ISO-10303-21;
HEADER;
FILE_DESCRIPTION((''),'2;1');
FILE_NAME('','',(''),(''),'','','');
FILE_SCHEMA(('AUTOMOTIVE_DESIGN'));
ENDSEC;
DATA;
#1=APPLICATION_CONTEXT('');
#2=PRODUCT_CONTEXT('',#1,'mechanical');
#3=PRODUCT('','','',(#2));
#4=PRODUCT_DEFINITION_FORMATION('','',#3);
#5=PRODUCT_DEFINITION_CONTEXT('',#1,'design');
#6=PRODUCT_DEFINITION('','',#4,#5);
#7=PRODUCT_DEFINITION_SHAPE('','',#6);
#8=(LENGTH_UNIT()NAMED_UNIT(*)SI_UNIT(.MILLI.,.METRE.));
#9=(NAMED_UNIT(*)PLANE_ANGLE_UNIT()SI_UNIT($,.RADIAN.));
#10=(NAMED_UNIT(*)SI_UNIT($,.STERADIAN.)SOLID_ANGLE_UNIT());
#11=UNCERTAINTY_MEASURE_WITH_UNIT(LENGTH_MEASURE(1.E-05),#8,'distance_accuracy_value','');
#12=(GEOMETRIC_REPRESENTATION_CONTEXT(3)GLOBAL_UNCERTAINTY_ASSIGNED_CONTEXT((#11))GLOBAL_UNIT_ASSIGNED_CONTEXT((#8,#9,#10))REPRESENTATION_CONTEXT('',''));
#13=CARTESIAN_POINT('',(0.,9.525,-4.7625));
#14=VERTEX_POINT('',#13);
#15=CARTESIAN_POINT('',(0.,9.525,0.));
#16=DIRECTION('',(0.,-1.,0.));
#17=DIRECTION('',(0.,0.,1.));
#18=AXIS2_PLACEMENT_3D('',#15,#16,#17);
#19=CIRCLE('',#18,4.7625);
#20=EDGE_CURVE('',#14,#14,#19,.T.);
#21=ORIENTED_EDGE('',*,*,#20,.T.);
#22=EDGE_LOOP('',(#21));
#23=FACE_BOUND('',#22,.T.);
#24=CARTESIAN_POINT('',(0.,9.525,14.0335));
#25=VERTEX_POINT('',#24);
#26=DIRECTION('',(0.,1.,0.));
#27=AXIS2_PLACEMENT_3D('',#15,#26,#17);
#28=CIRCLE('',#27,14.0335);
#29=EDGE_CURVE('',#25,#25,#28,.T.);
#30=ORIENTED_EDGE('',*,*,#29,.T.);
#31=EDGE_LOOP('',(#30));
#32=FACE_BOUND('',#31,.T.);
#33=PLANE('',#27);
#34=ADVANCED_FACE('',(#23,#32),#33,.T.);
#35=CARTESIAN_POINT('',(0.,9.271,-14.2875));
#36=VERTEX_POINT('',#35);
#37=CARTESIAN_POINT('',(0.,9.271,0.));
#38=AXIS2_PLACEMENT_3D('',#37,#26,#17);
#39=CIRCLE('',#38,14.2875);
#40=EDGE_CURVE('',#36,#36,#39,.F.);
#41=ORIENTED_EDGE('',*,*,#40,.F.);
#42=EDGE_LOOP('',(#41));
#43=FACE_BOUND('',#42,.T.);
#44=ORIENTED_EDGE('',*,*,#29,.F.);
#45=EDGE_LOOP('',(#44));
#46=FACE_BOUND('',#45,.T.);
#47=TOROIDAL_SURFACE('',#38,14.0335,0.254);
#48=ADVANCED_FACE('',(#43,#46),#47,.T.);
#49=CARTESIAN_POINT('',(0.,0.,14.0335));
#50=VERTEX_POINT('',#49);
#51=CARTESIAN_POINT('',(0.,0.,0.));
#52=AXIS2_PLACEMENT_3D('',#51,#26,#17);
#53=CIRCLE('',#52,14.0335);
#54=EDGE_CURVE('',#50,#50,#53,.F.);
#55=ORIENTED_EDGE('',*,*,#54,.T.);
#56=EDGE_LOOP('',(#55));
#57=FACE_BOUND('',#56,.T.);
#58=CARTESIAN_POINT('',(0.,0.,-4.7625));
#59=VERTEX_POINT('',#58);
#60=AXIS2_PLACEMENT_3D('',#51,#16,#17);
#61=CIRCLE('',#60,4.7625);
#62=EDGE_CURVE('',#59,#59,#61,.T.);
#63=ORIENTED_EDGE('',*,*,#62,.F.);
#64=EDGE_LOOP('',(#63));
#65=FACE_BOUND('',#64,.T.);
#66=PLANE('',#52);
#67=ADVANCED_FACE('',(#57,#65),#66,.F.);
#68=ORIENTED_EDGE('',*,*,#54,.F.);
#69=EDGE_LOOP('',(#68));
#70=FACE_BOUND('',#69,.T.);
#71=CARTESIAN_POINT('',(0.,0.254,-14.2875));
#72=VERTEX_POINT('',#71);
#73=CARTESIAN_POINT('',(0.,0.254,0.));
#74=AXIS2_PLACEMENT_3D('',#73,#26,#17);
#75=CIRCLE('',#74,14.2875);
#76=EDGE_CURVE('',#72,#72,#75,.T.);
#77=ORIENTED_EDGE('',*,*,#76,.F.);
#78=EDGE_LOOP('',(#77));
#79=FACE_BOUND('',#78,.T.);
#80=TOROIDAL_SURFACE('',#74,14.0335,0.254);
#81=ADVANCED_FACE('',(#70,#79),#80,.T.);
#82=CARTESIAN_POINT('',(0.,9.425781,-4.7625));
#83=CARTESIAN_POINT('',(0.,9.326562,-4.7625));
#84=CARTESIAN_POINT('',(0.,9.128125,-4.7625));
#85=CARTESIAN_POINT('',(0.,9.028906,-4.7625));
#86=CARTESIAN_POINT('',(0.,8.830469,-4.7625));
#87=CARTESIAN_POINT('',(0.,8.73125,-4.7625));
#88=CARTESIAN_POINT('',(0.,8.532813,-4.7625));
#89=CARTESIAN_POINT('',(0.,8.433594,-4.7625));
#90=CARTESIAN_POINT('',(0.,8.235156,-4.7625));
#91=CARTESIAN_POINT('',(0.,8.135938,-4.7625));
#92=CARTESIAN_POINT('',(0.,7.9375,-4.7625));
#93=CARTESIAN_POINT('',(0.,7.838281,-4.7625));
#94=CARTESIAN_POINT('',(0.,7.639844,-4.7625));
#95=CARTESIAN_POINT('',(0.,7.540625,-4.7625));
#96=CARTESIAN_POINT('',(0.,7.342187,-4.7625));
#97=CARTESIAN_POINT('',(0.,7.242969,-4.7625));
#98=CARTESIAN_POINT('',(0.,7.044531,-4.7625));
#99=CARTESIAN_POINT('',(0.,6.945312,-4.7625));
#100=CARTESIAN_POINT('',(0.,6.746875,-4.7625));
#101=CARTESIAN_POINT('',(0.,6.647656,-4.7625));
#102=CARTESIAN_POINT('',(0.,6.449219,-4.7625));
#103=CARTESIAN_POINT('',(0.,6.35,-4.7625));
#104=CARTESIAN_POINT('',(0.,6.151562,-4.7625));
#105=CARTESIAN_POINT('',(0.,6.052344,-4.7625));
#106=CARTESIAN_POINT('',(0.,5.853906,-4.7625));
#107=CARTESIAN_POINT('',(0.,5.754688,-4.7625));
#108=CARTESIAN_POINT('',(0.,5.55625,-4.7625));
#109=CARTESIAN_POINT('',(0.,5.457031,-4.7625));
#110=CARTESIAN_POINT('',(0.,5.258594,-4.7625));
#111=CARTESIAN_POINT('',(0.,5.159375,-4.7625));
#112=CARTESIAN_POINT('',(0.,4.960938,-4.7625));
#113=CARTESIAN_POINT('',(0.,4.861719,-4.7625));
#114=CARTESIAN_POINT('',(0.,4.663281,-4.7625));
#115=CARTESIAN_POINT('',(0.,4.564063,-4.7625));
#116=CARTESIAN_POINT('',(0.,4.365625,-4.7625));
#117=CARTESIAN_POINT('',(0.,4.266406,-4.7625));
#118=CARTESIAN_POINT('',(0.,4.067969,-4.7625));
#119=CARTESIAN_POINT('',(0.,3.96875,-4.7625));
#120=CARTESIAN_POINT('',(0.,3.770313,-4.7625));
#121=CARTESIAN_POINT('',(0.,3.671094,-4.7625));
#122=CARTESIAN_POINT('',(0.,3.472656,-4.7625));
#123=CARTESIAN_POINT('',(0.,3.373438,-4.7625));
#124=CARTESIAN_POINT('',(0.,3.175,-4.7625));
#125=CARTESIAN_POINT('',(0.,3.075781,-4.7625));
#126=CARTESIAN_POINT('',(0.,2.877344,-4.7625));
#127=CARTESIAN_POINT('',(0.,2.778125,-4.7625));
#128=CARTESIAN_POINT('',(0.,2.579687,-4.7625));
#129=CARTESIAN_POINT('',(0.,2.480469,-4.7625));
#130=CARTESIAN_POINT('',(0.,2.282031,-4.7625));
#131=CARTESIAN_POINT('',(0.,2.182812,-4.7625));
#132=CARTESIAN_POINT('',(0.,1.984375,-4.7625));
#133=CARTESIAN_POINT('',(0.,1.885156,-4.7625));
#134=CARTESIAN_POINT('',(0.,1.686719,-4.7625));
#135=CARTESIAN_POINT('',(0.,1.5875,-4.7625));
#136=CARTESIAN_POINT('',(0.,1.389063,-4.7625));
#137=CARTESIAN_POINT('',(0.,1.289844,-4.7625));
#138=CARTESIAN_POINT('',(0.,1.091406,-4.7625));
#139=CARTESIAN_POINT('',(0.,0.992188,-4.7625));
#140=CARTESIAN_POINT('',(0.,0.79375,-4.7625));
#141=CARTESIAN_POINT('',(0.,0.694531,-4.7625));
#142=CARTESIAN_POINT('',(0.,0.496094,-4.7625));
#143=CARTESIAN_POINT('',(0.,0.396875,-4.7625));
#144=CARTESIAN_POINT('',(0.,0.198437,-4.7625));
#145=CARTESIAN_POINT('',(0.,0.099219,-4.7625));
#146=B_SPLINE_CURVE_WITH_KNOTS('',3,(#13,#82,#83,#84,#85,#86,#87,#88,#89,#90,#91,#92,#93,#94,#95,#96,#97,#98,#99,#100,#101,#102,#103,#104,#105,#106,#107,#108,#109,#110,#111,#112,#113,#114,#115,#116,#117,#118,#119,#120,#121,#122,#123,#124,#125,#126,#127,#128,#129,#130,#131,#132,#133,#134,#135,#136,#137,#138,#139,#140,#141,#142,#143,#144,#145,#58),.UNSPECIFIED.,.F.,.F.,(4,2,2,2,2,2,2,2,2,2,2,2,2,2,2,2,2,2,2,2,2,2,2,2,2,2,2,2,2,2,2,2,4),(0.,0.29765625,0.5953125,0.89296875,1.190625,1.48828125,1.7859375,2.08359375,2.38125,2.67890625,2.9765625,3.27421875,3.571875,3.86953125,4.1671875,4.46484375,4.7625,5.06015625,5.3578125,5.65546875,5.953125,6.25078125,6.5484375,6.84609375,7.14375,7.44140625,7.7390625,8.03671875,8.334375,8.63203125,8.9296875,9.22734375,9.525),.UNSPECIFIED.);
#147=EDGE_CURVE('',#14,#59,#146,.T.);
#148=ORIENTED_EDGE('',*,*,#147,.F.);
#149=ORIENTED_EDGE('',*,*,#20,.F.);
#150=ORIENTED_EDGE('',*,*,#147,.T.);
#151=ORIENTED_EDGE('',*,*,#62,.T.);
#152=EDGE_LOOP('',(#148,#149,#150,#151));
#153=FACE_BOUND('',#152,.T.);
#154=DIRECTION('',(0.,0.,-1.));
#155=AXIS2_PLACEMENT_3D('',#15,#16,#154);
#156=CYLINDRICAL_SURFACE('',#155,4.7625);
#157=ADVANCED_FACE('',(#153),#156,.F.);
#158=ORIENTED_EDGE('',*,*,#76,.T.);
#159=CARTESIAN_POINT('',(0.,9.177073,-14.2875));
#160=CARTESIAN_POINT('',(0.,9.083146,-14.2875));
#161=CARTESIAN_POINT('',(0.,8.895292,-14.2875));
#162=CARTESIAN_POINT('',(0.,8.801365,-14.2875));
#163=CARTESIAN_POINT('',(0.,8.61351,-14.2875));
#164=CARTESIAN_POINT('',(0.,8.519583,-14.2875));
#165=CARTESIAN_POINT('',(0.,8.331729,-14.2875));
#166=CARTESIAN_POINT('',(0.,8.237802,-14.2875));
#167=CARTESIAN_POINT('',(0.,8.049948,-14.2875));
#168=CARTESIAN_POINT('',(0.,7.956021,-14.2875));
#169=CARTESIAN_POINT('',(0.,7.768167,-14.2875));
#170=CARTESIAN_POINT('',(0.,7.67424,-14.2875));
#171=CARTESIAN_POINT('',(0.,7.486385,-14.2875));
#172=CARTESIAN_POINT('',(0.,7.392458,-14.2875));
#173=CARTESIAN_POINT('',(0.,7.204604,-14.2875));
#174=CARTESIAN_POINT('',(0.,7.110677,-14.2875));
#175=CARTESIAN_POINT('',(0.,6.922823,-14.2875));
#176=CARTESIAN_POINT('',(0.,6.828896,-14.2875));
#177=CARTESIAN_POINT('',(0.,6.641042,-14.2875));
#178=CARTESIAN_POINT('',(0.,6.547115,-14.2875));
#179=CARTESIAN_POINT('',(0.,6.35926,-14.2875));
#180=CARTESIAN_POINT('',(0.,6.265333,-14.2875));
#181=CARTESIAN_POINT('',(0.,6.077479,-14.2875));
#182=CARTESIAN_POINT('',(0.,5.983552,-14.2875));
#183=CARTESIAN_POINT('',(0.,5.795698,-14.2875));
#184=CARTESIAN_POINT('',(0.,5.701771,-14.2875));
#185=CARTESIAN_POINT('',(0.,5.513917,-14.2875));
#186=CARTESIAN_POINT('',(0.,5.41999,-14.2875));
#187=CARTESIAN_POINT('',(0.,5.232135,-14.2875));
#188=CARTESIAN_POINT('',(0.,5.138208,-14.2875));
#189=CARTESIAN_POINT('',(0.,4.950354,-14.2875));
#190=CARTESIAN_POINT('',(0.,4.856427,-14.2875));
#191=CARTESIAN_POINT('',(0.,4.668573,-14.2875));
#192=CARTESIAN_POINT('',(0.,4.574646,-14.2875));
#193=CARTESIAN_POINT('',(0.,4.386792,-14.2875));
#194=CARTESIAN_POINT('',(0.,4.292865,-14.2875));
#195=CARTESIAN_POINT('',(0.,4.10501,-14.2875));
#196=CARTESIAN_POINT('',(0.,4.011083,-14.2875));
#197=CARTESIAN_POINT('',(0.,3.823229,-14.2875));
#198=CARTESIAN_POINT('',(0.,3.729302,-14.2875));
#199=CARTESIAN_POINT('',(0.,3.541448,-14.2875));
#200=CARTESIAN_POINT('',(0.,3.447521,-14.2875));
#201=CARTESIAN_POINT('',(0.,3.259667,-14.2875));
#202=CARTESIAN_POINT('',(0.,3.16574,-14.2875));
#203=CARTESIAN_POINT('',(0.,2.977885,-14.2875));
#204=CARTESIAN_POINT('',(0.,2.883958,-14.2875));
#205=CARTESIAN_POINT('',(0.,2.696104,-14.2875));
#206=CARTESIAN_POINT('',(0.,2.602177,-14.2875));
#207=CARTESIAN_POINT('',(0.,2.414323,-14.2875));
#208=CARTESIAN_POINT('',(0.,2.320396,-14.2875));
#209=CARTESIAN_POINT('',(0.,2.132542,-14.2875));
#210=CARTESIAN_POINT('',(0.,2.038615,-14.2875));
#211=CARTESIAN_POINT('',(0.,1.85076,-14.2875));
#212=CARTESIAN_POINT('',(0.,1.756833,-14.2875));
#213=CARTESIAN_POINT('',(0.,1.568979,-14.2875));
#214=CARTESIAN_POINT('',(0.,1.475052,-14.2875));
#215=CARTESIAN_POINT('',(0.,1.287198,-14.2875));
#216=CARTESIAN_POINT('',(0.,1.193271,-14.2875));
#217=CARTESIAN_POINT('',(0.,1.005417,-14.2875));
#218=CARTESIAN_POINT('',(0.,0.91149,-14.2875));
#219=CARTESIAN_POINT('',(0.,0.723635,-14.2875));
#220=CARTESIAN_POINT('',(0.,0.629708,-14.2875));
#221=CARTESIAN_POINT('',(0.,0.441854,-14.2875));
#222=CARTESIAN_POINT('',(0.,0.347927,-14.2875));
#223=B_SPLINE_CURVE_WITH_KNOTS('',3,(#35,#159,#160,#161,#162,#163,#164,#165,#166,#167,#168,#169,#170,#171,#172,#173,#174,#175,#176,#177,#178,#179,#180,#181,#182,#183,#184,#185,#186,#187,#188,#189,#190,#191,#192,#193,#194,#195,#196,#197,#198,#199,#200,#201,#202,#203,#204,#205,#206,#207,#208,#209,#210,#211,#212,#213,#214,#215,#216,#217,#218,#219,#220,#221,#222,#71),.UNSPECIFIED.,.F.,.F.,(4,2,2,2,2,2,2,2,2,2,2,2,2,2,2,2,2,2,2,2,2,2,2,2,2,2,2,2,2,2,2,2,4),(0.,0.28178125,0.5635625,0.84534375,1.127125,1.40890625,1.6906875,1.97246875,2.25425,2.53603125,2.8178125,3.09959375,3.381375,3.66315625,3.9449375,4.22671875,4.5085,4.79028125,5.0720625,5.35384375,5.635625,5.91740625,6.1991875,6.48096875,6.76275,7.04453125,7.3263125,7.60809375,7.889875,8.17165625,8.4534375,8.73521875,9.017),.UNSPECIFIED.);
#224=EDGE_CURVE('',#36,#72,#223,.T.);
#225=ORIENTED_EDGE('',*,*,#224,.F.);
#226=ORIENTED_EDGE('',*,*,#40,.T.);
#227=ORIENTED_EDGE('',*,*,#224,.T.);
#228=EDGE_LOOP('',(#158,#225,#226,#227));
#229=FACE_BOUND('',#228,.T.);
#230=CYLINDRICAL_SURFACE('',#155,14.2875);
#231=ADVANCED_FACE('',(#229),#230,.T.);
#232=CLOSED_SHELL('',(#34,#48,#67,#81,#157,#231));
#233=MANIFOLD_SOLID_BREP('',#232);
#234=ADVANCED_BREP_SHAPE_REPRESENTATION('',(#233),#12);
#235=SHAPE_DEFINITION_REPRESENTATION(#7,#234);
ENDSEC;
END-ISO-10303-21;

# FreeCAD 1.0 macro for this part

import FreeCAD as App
import Part
import Sketcher
Q = App.Units.Quantity


def edges_at(feature, points):
    """Names of the edges that pass closest to the given points."""
    edges = feature.Shape.Edges
    near = lambda p: min(range(len(edges)), key=lambda i: edges[i].distToShape(Part.Vertex(*p))[0])
    return sorted({f"Edge{near(p) + 1}" for p in points})

doc = App.newDocument("Part")
params = doc.addObject("Spreadsheet::Sheet", "Params")
for row, (alias, value) in enumerate([
    ("sketch1_diameter", "1.125 in"),
    ("sketch1_diameter2", "0.375 in"),
    ("pad1_length", "0.375 in"),
    ("fillet_radius", "0.01 in"),
], start=1):
    params.set(f"A{row}", alias)
    params.set(f"B{row}", "=" + value)
    params.setAlias(f"B{row}", alias)

body = doc.addObject("PartDesign::Body", "Body")

# Sketch on XZ plane
sketch1 = doc.addObject("Sketcher::SketchObject", "Sketch")
body.addObject(sketch1)
sketch1.AttachmentSupport = (doc.XZ_Plane, [""])
sketch1.MapMode = "FlatFace"
sketch1.addGeometry(Part.Circle(App.Vector(0, 0, 0), App.Vector(0, 0, 1), 14.3), False)
sketch1.addGeometry(Part.Circle(App.Vector(0, 0, 0), App.Vector(0, 0, 1), 4.8), False)
sketch1.addConstraint(Sketcher.Constraint("Coincident", 0, 3, -1, 1))
sketch1.addConstraint(Sketcher.Constraint("Coincident", 1, 3, -1, 1))
sketch1.addConstraint(Sketcher.Constraint("Diameter", 0, Q("1.125 in")))
sketch1.addConstraint(Sketcher.Constraint("Diameter", 1, Q("0.375 in")))
sketch1.setExpression("Constraints[2]", "Params.sketch1_diameter")
sketch1.setExpression("Constraints[3]", "Params.sketch1_diameter2")
pad1 = doc.addObject("PartDesign::Pad", "Pad")
body.addObject(pad1)
pad1.Profile = sketch1
pad1.setExpression("Length", "Params.pad1_length")
pad1.Reversed = True
doc.recompute()

fillet = doc.addObject("PartDesign::Fillet", "Fillet")
body.addObject(fillet)
fillet.Base = (pad1, edges_at(pad1, [(0, 0, 14.287), (0, 9.525, 14.287)]))
fillet.setExpression("Radius", "Params.fillet_radius")

doc.recompute()
